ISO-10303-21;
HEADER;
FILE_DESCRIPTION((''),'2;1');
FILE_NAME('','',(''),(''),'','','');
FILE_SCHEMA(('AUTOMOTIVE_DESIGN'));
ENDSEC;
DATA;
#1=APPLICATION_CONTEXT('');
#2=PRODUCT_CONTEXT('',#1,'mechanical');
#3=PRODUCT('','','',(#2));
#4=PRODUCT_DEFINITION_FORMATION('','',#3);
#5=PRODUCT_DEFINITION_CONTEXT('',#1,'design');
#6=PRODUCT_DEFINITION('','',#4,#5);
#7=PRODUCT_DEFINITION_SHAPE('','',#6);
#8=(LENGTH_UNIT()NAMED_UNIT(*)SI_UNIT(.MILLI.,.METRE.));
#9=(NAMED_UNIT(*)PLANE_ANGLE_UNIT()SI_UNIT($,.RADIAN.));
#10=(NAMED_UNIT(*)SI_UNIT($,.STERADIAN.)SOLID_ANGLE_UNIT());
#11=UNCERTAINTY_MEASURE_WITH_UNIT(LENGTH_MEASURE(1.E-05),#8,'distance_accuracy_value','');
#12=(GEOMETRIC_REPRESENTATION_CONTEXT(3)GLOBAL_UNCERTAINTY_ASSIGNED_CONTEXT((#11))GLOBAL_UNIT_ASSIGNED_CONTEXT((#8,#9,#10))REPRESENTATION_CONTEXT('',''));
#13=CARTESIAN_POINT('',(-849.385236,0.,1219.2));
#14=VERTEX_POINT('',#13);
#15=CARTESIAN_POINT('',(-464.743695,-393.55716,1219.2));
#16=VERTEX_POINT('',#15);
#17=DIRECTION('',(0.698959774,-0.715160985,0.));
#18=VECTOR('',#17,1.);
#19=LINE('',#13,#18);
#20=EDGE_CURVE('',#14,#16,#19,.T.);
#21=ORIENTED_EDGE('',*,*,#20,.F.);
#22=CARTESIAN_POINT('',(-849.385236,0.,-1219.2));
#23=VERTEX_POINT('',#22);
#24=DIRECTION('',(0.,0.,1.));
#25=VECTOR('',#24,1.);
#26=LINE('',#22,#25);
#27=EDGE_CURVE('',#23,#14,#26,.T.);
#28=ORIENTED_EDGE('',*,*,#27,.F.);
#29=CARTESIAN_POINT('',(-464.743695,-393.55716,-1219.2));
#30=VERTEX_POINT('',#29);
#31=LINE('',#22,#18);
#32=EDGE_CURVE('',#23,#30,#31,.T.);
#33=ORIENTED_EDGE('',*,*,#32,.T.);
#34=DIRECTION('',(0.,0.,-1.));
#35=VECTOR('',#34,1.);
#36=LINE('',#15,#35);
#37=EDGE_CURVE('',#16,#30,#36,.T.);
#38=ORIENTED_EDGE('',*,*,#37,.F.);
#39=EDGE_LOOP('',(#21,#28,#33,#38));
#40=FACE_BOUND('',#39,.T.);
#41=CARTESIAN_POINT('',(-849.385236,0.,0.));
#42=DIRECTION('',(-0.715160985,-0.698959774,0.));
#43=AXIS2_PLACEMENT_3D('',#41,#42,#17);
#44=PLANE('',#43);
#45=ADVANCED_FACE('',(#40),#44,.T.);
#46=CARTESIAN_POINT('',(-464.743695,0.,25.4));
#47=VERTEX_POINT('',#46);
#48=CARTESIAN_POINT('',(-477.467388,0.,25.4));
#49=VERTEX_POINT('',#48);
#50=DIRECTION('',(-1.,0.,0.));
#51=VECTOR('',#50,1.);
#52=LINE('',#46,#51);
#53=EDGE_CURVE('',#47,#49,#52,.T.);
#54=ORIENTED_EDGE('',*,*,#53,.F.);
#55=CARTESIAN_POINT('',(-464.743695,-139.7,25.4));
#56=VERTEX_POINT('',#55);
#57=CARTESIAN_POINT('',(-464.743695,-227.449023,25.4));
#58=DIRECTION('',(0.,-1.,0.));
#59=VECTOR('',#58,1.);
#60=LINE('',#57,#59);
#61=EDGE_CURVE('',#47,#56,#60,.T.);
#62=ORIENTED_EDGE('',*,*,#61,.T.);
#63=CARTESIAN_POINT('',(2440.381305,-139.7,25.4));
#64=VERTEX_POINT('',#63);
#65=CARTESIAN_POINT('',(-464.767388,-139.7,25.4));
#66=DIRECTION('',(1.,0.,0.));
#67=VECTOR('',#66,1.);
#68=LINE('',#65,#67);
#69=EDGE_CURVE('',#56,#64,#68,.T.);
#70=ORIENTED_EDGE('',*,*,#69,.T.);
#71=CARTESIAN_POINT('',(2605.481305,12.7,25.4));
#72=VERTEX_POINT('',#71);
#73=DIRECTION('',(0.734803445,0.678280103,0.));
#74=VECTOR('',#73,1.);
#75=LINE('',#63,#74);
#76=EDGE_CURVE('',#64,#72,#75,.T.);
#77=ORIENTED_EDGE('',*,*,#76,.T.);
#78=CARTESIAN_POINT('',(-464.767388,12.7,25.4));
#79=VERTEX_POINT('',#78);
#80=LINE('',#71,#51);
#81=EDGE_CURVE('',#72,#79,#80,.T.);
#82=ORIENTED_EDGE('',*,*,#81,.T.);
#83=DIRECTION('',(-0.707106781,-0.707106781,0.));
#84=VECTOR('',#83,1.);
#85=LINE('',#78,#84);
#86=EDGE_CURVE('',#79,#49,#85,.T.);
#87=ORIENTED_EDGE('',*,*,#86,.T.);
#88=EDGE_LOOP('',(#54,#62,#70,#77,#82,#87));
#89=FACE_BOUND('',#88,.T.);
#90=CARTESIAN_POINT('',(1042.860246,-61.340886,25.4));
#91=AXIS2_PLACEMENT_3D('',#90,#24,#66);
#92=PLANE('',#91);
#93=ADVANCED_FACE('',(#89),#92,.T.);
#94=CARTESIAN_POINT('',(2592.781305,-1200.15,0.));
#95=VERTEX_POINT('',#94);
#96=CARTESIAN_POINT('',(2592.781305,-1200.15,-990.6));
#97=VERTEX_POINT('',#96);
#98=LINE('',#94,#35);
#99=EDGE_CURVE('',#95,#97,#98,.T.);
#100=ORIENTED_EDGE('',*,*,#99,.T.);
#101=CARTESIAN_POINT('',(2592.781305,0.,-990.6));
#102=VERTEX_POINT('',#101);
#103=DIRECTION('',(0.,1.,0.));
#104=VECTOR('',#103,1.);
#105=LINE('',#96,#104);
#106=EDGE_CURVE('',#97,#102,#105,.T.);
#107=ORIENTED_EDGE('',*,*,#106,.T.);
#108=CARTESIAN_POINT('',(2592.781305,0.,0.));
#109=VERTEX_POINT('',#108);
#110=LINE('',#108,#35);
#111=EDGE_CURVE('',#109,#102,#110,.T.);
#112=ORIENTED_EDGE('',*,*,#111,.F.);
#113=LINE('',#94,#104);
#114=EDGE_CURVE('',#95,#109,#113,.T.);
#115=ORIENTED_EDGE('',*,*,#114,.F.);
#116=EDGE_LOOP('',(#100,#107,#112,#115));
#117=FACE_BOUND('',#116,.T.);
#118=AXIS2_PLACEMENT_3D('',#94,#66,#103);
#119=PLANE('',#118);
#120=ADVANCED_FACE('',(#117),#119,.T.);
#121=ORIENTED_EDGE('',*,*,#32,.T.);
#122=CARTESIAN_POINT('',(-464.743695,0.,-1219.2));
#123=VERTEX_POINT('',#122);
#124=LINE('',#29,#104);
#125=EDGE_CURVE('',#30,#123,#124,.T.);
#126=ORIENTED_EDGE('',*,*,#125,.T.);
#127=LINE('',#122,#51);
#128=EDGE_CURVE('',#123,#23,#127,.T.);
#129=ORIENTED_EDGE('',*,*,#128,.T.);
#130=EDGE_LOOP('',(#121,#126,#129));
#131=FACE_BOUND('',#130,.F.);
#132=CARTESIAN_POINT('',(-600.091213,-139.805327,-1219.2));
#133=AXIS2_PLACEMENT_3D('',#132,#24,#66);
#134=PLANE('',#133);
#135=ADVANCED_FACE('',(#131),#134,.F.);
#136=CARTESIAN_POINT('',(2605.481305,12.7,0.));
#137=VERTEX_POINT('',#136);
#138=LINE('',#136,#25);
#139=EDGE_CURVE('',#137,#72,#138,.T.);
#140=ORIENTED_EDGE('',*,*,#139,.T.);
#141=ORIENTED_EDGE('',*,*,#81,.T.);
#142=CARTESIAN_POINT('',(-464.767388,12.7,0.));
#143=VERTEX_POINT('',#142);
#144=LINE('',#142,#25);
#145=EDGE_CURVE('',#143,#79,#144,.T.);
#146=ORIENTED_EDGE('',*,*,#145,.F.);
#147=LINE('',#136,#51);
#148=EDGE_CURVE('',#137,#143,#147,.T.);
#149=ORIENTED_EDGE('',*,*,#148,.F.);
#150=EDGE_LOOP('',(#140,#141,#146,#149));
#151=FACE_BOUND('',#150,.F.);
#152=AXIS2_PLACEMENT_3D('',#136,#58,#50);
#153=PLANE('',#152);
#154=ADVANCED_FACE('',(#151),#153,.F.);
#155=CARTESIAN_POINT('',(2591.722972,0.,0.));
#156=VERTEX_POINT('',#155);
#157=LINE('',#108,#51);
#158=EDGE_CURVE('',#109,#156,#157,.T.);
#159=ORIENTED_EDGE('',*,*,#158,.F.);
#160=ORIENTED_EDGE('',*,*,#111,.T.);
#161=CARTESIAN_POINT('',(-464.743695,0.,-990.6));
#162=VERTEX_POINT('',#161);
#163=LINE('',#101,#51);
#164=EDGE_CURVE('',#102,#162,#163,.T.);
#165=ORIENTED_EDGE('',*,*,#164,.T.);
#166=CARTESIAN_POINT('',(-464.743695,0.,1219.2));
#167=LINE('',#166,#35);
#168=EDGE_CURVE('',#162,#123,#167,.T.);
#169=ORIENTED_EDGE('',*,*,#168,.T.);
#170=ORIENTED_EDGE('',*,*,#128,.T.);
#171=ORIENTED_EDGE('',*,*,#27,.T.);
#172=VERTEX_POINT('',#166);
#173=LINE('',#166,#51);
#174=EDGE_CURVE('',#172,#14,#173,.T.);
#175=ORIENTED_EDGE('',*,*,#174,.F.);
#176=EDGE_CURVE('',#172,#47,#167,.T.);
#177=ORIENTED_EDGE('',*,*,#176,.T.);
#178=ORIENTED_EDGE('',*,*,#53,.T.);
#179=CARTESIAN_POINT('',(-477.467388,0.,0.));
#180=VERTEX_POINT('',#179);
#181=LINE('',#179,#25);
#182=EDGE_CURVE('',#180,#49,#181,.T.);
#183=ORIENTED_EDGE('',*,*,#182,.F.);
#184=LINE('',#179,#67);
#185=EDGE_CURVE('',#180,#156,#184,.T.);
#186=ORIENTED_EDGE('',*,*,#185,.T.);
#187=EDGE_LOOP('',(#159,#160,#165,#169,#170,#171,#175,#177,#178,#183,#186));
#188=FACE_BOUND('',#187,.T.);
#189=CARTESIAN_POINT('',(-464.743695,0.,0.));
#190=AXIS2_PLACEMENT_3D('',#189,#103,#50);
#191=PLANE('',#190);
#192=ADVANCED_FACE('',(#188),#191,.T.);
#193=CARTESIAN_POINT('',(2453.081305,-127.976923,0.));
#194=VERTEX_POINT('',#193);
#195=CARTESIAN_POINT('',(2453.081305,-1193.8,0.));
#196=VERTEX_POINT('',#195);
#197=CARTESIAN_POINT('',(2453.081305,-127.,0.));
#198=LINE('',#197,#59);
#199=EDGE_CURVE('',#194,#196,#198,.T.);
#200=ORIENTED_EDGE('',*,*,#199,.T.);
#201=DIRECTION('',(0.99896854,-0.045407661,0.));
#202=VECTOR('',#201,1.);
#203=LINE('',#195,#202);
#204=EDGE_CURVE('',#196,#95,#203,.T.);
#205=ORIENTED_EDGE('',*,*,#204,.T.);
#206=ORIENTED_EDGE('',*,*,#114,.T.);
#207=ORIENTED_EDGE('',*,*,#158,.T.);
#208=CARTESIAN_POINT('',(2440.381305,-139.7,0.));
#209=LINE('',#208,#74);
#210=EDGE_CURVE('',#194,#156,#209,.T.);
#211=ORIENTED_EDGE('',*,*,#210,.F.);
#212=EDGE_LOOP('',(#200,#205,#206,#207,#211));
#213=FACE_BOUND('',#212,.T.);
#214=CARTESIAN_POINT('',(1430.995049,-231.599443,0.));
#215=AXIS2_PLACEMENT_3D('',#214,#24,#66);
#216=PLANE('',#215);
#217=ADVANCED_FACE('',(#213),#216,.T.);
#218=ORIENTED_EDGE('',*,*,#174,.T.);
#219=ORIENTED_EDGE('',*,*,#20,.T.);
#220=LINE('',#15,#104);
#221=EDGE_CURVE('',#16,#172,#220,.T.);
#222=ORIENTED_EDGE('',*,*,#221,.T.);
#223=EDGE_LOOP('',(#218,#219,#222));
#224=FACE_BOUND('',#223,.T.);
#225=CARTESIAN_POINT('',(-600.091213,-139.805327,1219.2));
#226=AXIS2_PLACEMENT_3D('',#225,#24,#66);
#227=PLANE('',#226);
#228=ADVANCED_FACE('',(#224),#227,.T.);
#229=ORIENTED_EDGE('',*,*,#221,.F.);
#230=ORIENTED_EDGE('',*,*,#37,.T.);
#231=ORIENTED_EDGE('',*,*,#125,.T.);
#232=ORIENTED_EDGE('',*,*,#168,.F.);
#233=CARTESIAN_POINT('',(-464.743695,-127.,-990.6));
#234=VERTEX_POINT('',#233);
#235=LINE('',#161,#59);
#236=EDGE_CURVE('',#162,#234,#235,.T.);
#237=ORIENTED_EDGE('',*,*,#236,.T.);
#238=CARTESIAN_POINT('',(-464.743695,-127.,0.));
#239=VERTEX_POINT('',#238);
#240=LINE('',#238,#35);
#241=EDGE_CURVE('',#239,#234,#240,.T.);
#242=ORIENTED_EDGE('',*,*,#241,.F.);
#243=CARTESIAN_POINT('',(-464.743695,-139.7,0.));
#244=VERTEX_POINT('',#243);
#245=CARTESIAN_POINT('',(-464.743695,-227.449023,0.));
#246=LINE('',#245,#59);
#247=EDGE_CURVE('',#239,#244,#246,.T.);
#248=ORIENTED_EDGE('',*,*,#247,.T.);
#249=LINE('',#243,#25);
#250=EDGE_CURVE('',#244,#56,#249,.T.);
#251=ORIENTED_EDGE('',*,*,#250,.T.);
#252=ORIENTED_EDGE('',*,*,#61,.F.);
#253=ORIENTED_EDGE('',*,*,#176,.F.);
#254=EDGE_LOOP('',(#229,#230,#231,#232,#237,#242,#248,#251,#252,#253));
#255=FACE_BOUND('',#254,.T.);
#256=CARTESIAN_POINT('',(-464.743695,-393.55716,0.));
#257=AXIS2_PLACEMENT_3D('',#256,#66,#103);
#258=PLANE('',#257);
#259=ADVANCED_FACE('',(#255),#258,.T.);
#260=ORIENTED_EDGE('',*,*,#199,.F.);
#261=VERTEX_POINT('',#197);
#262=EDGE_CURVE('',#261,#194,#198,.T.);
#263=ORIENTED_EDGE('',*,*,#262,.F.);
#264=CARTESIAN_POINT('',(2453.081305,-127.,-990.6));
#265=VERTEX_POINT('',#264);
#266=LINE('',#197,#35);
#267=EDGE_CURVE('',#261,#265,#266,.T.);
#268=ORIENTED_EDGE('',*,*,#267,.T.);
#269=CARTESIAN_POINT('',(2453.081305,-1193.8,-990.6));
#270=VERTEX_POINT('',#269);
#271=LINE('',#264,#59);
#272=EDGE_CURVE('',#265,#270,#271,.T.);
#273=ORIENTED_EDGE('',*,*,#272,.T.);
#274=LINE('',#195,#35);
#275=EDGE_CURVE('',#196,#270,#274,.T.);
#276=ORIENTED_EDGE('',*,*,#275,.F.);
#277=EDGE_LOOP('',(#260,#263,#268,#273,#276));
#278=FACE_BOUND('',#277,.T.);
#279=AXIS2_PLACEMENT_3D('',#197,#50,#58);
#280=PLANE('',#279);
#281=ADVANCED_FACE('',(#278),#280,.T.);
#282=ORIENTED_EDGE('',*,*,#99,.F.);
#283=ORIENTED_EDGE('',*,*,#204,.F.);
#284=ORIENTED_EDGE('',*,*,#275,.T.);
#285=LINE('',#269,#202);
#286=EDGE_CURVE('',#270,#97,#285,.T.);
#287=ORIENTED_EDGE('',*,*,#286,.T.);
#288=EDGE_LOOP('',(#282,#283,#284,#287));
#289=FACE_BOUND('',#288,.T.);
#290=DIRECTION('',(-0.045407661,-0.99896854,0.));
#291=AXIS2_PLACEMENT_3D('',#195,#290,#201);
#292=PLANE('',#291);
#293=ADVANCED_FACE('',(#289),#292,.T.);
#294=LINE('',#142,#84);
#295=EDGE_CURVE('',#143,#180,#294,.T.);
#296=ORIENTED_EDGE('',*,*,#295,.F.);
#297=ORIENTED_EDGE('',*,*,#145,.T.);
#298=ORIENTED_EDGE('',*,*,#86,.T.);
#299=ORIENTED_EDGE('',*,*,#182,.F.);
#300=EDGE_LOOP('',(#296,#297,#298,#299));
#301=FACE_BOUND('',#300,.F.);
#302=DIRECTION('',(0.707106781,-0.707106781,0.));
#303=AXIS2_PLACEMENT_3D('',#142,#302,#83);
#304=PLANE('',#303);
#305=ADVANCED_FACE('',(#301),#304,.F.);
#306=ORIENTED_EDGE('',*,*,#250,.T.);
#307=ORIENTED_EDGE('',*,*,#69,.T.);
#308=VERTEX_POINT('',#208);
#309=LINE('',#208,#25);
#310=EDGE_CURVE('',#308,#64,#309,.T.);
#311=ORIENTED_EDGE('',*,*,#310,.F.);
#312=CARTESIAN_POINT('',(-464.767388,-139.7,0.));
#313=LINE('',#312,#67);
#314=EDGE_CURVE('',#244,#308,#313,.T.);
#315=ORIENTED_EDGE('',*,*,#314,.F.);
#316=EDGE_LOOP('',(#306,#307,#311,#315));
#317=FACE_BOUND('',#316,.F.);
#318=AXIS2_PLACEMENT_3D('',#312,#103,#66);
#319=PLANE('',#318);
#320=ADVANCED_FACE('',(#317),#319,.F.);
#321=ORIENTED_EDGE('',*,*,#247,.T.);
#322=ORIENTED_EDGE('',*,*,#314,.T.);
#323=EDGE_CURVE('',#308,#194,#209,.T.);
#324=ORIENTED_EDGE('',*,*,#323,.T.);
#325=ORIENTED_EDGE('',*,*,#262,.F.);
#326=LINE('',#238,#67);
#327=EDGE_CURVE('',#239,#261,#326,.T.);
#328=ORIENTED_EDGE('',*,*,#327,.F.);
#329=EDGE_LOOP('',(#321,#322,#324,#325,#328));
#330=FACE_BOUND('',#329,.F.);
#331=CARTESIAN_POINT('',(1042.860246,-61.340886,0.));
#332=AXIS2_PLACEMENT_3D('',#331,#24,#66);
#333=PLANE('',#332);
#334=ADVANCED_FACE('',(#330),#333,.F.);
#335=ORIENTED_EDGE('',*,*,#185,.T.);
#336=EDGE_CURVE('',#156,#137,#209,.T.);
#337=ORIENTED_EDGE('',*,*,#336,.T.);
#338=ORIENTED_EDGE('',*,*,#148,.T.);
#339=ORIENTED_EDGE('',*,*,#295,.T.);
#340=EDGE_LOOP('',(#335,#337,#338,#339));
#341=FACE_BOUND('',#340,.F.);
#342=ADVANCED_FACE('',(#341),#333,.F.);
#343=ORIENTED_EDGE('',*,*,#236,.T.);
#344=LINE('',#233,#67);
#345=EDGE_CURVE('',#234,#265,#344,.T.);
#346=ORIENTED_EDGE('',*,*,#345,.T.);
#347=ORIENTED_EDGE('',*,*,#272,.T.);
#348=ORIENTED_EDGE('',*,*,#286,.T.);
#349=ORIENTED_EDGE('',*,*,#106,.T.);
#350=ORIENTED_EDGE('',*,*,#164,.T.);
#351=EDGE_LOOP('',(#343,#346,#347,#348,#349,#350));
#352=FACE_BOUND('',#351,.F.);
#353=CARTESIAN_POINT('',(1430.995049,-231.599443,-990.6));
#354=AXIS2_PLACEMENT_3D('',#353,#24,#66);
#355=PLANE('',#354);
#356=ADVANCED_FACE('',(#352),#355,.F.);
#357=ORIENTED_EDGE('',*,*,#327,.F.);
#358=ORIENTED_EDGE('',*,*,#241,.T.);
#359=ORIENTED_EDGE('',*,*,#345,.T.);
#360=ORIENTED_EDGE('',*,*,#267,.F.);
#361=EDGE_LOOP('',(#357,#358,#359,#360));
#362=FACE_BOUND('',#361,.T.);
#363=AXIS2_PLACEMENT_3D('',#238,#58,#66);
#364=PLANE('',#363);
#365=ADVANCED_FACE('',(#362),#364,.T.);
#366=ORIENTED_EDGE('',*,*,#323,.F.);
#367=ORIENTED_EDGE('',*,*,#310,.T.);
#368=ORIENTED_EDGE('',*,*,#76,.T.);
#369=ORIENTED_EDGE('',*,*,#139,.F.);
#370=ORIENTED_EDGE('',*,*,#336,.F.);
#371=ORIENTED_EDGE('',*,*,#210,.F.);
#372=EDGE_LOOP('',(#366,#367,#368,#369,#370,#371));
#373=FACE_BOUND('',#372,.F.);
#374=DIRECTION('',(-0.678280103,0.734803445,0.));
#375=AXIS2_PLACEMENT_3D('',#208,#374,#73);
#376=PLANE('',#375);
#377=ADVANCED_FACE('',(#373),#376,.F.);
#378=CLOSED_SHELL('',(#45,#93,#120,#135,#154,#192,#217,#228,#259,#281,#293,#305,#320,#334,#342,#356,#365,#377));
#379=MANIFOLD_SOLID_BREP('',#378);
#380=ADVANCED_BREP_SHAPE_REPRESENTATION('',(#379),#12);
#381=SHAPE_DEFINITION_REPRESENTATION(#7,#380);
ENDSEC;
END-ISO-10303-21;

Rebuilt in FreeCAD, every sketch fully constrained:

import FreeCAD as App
import Part
import Sketcher
from FreeCAD import Vector
Q = App.Units.Quantity


def add_polygon(sketch, points):
    """Adds a closed chain of lines whose ends are joined by coincident constraints."""
    first, n = sketch.GeometryCount, len(points)
    for a, b in zip(points, points[1:] + points[:1]):
        sketch.addGeometry(Part.LineSegment(App.Vector(*a, 0), App.Vector(*b, 0)), False)
    for i in range(n):
        sketch.addConstraint(Sketcher.Constraint("Coincident", first + i, 2, first + (i + 1) % n, 1))

doc = App.newDocument("Part")
body = doc.addObject("PartDesign::Body", "Body")

sketch1 = doc.addObject("Sketcher::SketchObject", "Sketch")
body.addObject(sketch1)
sketch1.AttachmentSupport = (doc.XY_Plane, [""])
sketch1.MapMode = "FlatFace"
add_polygon(sketch1, [(2593, 0), (-465, 0), (-465, -127), (2453, -127), (2453, -1194), (2593, -1200)])
sketch1.addConstraint([
    Sketcher.Constraint("Horizontal", 0),
    Sketcher.Constraint("Vertical", 1),
    Sketcher.Constraint("Horizontal", 2),
    Sketcher.Constraint("Vertical", 3),
    Sketcher.Constraint("Vertical", 5),
    Sketcher.Constraint("PointOnObject", 0, 2, -1),
    Sketcher.Constraint("DistanceY", 1, 2, 1, 1, Q("5 in")),
    Sketcher.Constraint("DistanceY", 3, 2, 3, 1, Q("42 in")),
    Sketcher.Constraint("DistanceY", 5, 1, 5, 2, Q("47.25 in")),
    Sketcher.Constraint("DistanceX", 3, 2, 4, 2, Q("5.5 in")),
    Sketcher.Constraint("DistanceX", 0, 2, 0, 1, Q("120.375 in")),
    Sketcher.Constraint("DistanceX", 0, 2, -1, 1, Q("464.743695 mm")),
])
pad1 = doc.addObject("PartDesign::Pad", "Pad")
body.addObject(pad1)
pad1.Profile = sketch1
pad1.Length = Q("39 in")
pad1.Reversed = True

sketch2 = doc.addObject("Sketcher::SketchObject", "Sketch001")
body.addObject(sketch2)
sketch2.AttachmentSupport = (doc.XY_Plane, [""])
sketch2.MapMode = "FlatFace"
add_polygon(sketch2, [(-465, 0), (-849, 0), (-465, -394)])
sketch2.addConstraint([
    Sketcher.Constraint("Horizontal", 0),
    Sketcher.Constraint("Vertical", 2),
    Sketcher.Constraint("PointOnObject", 0, 2, -1),
    Sketcher.Constraint("DistanceX", 0, 2, 0, 1, Q("384.641541 mm")),
    Sketcher.Constraint("DistanceY", 2, 1, 2, 2, Q("393.55716 mm")),
    Sketcher.Constraint("DistanceX", 0, 2, -1, 1, Q("849.385236 mm")),
])
pad2 = doc.addObject("PartDesign::Pad", "Pad001")
body.addObject(pad2)
pad2.Profile = sketch2
pad2.Length = Q("96 in")
pad2.Midplane = True

sketch3 = doc.addObject("Sketcher::SketchObject", "Sketch002")
body.addObject(sketch3)
sketch3.AttachmentSupport = (doc.XY_Plane, [""])
sketch3.MapMode = "FlatFace"
add_polygon(sketch3, [(-465, 0), (-465, -140), (2440, -140), (2605, 13), (-465, 13), (-477, 0)])
sketch3.addConstraint([
    Sketcher.Constraint("Vertical", 0),
    Sketcher.Constraint("Horizontal", 1),
    Sketcher.Constraint("Horizontal", 3),
    Sketcher.Constraint("Horizontal", 5),
    Sketcher.Constraint("PointOnObject", 4, 2, -1),
    Sketcher.Constraint("Vertical", 0, 2, 3, 2),
    Sketcher.Constraint("DistanceX", 5, 1, 5, 2, Q("0.5 in")),
    Sketcher.Constraint("DistanceY", 0, 2, 0, 1, Q("5.5 in")),
    Sketcher.Constraint("Angle", 4, Q("-135 deg")),
    Sketcher.Constraint("DistanceX", 1, 2, 2, 2, Q("6.5 in")),
    Sketcher.Constraint("DistanceX", 1, 1, 1, 2, Q("2905.148693 mm")),
    Sketcher.Constraint("DistanceX", 0, 2, -1, 1, Q("464.767388 mm")),
])
pad3 = doc.addObject("PartDesign::Pad", "Pad002")
body.addObject(pad3)
pad3.Profile = sketch3
pad3.Length = Q("1 in")

doc.recompute()
